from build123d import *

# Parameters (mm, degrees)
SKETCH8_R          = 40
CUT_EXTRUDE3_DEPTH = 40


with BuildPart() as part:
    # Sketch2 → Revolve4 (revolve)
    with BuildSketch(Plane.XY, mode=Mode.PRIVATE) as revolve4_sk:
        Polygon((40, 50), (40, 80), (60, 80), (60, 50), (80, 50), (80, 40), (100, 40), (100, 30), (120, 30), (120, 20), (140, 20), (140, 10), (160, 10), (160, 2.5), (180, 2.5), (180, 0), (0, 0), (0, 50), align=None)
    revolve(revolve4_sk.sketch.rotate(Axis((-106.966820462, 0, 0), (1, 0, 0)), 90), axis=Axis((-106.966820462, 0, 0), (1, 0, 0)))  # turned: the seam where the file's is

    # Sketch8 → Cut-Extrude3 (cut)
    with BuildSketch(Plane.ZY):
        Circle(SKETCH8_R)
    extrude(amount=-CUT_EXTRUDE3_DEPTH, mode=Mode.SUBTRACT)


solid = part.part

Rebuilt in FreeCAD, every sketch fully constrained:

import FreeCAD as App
import Part
import Sketcher

V = App.Vector
Q = App.Units.Quantity


def add_polygon(sketch, points):
    """Adds a closed chain of lines whose ends are joined by coincident constraints."""
    first, n = sketch.GeometryCount, len(points)
    for a, b in zip(points, points[1:] + points[:1]):
        sketch.addGeometry(Part.LineSegment(App.Vector(*a, 0), App.Vector(*b, 0)), False)
    for i in range(n):
        sketch.addConstraint(Sketcher.Constraint("Coincident", first + i, 2, first + (i + 1) % n, 1))

doc = App.newDocument("Part")
body = doc.addObject("PartDesign::Body", "Body")

# Sketch on XY plane
sketch1 = doc.addObject("Sketcher::SketchObject", "Sketch")
body.addObject(sketch1)
sketch1.AttachmentSupport = (doc.XY_Plane, [""])
sketch1.MapMode = "FlatFace"
add_polygon(sketch1, [(40, 80), (40, 50), (0, 50), (0, 0), (180, 0), (180, 2.5), (160, 2.5), (160, 10), (140, 10), (140, 20), (120, 20), (120, 30), (100, 30), (100, 40), (80, 40), (80, 50), (60, 50), (60, 80)])  # lines 0-17
sketch1.addConstraint([
    Sketcher.Constraint("Vertical", 0),
    Sketcher.Constraint("Horizontal", 1),
    Sketcher.Constraint("Vertical", 2),
    Sketcher.Constraint("Horizontal", 3),
    Sketcher.Constraint("Vertical", 4),
    Sketcher.Constraint("Horizontal", 5),
    Sketcher.Constraint("Vertical", 6),
    Sketcher.Constraint("Horizontal", 7),
    Sketcher.Constraint("Vertical", 8),
    Sketcher.Constraint("Horizontal", 9),
    Sketcher.Constraint("Vertical", 10),
    Sketcher.Constraint("Horizontal", 11),
    Sketcher.Constraint("Vertical", 12),
    Sketcher.Constraint("Horizontal", 13),
    Sketcher.Constraint("Vertical", 14),
    Sketcher.Constraint("Horizontal", 15),
    Sketcher.Constraint("Vertical", 16),
    Sketcher.Constraint("Horizontal", 17),
    Sketcher.Constraint("Coincident", 2, 2, -1, 1),
    Sketcher.Constraint("Horizontal", 1, 2, 14, 2),
    Sketcher.Constraint("Equal", 5, 7),
    Sketcher.Constraint("Equal", 7, 9),
    Sketcher.Constraint("Equal", 9, 11),
    Sketcher.Constraint("Equal", 11, 13),
    Sketcher.Constraint("Equal", 13, 15),
    Sketcher.Constraint("Equal", 15, 17),
    Sketcher.Constraint("Equal", 8, 10),
    Sketcher.Constraint("Equal", 10, 12),
    Sketcher.Constraint("Equal", 12, 14),
    Sketcher.Constraint("DistanceX", 1, 2, 1, 1, Q("40 mm")),
    Sketcher.Constraint("DistanceX", 3, 1, 3, 2, Q("180 mm")),
    Sketcher.Constraint("DistanceY", 0, 2, 0, 1, Q("30 mm")),
    Sketcher.Constraint("DistanceY", 2, 2, 2, 1, Q("50 mm")),
    Sketcher.Constraint("DistanceY", 8, 1, 8, 2, Q("10 mm")),
    Sketcher.Constraint("DistanceY", 4, 1, 4, 2, Q("2.5 mm")),
])
revolution = doc.addObject("PartDesign::Revolution", "Revolution")
body.addObject(revolution)
revolution.Profile = sketch1
revolution.ReferenceAxis = (sketch1, ["H_Axis"])
revolution.Angle = 360

# Sketch on YZ plane
sketch2 = doc.addObject("Sketcher::SketchObject", "Sketch001")
body.addObject(sketch2)
sketch2.AttachmentSupport = (doc.YZ_Plane, [""])
sketch2.MapMode = "FlatFace"
sketch2.addGeometry(Part.Circle(V(0, 0, 0), V(0, 0, 1), 40), False)
sketch2.addConstraint([
    Sketcher.Constraint("Coincident", 0, 3, -1, 1),
    Sketcher.Constraint("Diameter", 0, Q("80 mm")),
])
pocket1 = doc.addObject("PartDesign::Pocket", "Pocket")
body.addObject(pocket1)
pocket1.Profile = sketch2
pocket1.Length = 40
pocket1.Reversed = True

doc.recompute()
